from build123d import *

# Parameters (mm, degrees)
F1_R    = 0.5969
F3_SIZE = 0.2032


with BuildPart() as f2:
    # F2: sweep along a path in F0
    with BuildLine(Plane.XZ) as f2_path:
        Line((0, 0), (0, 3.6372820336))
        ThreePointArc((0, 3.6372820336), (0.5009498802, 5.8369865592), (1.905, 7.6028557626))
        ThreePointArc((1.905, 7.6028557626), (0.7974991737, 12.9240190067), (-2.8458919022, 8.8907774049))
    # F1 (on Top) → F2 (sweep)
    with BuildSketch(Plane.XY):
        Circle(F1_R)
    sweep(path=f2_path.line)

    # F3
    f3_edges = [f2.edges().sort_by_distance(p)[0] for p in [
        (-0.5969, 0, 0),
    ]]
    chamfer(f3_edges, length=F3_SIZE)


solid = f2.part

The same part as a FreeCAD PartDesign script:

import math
import FreeCAD as App
import Part
import Sketcher
from FreeCAD import Vector
Q = App.Units.Quantity


def edges_at(feature, points):
    """Names of the edges that pass closest to the given points."""
    edges = feature.Shape.Edges
    near = lambda p: min(range(len(edges)), key=lambda i: edges[i].distToShape(Part.Vertex(*p))[0])
    return sorted({f"Edge{near(p) + 1}" for p in points})

doc = App.newDocument("Part")
body = doc.addObject("PartDesign::Body", "Body")

# Sketch on XY plane
sketch1 = body.newObject("Sketcher::SketchObject", "Sketch")
sketch1.AttachmentSupport = (doc.getObject("XY_Plane"), [""])
sketch1.MapMode = "FlatFace"
sketch1.addGeometry(Part.Circle(Vector(0, 0, 0), Vector(0, 0, 1), 0.6), False)
sketch1.addConstraint([
    Sketcher.Constraint("Coincident", 0, 3, -1, 1),
    Sketcher.Constraint("Diameter", 0, Q("0.047 in")),
])

# Sketch on XZ plane
sketch2 = body.newObject("Sketcher::SketchObject", "Sketch001")
sketch2.AttachmentSupport = (doc.getObject("XZ_Plane"), [""])
sketch2.MapMode = "FlatFace"
sketch2.addGeometry([
    Part.LineSegment(Vector(0, 0, 0), Vector(0, 3.6, 0)),
    Part.ArcOfCircle(Part.Circle(Vector(5.1, 3.6, 0), Vector(0, 0, 1), 5.1), math.radians(129), math.radians(180)),
    Part.ArcOfCircle(Part.Circle(Vector(0, 10, 0), Vector(0, 0, 1), 3), math.radians(-51), math.radians(201)),
], False)
sketch2.addConstraint([
    Sketcher.Constraint("Tangent", 0, 2, 1, 2),
    Sketcher.Constraint("Tangent", 1, 1, 2, 1),
    Sketcher.Constraint("Vertical", 0),
    Sketcher.Constraint("Coincident", 0, 1, -1, 1),
    Sketcher.Constraint("PointOnObject", 2, 3, -2),
    Sketcher.Constraint("Radius", 1, Q("0.2 in")),
    Sketcher.Constraint("Radius", 2, Q("0.12 in")),
    Sketcher.Constraint("DistanceY", 0, 1, 0, 2, Q("0.1432001 in")),
    Sketcher.Constraint("DistanceX", 2, 2, -1, 1, 2.845892),
])
doc.recompute()

additivepipe = body.newObject("PartDesign::AdditivePipe", "AdditivePipe")
additivepipe.Profile = sketch1
additivepipe.Spine = (sketch2, ["Edge1", "Edge2", "Edge3"])
doc.recompute()

chamfer = body.newObject("PartDesign::Chamfer", "Chamfer")
chamfer.Base = (additivepipe, edges_at(additivepipe, [(-0.597, 0, 0)]))
chamfer.Size = Q("0.008 in")

doc.recompute()
